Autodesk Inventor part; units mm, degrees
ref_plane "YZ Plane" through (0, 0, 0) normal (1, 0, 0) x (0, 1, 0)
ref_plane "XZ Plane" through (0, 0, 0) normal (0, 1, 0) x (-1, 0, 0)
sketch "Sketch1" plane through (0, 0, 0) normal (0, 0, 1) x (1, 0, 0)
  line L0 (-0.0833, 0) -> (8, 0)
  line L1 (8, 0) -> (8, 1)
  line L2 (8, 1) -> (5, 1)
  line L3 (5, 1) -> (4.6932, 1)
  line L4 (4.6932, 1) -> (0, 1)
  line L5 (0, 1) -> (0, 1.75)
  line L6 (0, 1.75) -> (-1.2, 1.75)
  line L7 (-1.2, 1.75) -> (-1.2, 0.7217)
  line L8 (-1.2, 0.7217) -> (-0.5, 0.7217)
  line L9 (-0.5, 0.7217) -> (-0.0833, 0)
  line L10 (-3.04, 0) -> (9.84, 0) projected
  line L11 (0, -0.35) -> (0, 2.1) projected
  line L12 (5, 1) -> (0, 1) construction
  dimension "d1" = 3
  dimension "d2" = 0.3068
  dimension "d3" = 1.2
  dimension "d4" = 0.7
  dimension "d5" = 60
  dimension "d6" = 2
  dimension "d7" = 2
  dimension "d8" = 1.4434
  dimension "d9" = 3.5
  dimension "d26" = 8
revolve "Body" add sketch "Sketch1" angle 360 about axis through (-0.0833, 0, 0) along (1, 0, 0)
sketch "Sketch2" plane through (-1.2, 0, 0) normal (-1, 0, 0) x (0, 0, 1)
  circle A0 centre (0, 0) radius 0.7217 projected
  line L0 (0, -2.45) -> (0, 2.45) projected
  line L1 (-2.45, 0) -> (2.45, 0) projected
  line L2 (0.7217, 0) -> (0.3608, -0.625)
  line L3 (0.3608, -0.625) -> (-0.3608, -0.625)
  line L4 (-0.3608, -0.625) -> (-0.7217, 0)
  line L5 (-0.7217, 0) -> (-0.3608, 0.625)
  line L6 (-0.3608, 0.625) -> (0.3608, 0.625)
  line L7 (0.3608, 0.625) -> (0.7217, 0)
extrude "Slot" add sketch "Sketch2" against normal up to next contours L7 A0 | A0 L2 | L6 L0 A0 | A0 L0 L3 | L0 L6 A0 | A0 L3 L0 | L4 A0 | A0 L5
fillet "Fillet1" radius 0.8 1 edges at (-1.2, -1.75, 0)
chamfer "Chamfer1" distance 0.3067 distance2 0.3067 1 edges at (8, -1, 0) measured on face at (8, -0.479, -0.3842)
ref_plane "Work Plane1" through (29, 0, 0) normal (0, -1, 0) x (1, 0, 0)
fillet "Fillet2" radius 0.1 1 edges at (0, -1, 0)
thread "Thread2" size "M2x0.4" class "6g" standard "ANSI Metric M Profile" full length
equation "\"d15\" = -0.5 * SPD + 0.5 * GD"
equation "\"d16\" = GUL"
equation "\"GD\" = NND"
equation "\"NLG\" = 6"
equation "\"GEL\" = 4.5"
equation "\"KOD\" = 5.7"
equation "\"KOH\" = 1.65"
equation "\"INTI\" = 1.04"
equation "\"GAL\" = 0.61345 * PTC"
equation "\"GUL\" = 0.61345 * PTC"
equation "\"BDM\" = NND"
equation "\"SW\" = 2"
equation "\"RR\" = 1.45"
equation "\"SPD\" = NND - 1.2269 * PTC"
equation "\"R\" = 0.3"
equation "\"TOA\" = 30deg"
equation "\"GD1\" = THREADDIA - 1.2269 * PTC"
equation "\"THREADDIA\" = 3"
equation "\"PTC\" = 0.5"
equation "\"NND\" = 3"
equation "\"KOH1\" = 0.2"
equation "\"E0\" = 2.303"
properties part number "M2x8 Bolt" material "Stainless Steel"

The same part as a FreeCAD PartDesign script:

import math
import FreeCAD as App
import Part
import Sketcher
from FreeCAD import Vector
Q = App.Units.Quantity


def edges_at(feature, points):
    """Names of the edges that pass closest to the given points."""
    edges = feature.Shape.Edges
    near = lambda p: min(range(len(edges)), key=lambda i: edges[i].distToShape(Part.Vertex(*p))[0])
    return sorted({f"Edge{near(p) + 1}" for p in points})

doc = App.newDocument("Part")
body = doc.addObject("PartDesign::Body", "Body")

# Sketch on XY plane
sketch1 = body.newObject("Sketcher::SketchObject", "Sketch")
sketch1.AttachmentSupport = (doc.getObject("XY_Plane"), [""])
sketch1.MapMode = "FlatFace"
sketch1.addGeometry(Part.LineSegment(Vector(-0.5, 0.7, 0), Vector(-0.1, 0, 0)), False)
sketch1.addGeometry(Part.LineSegment(Vector(-0.1, 0, 0), Vector(8, 0, 0)), False)
sketch1.addGeometry(Part.LineSegment(Vector(8, 0, 0), Vector(8, 1, 0)), False)
sketch1.addGeometry(Part.LineSegment(Vector(8, 1, 0), Vector(0, 1, 0)), False)
sketch1.addGeometry(Part.LineSegment(Vector(0, 1, 0), Vector(0, 1.8, 0)), False)
sketch1.addGeometry(Part.LineSegment(Vector(0, 1.8, 0), Vector(-1.2, 1.8, 0)), False)
sketch1.addGeometry(Part.LineSegment(Vector(-1.2, 1.8, 0), Vector(-1.2, 0.7, 0)), False)
sketch1.addGeometry(Part.LineSegment(Vector(-1.2, 0.7, 0), Vector(-0.5, 0.7, 0)), False)
sketch1.addConstraint(Sketcher.Constraint("Coincident", 0, 2, 1, 1))
sketch1.addConstraint(Sketcher.Constraint("Coincident", 1, 2, 2, 1))
sketch1.addConstraint(Sketcher.Constraint("Coincident", 2, 2, 3, 1))
sketch1.addConstraint(Sketcher.Constraint("Coincident", 3, 2, 4, 1))
sketch1.addConstraint(Sketcher.Constraint("Coincident", 4, 2, 5, 1))
sketch1.addConstraint(Sketcher.Constraint("Coincident", 5, 2, 6, 1))
sketch1.addConstraint(Sketcher.Constraint("Coincident", 6, 2, 7, 1))
sketch1.addConstraint(Sketcher.Constraint("Coincident", 7, 2, 0, 1))
sketch1.addConstraint(Sketcher.Constraint("Horizontal", 1))
sketch1.addConstraint(Sketcher.Constraint("Vertical", 2))
sketch1.addConstraint(Sketcher.Constraint("Horizontal", 3))
sketch1.addConstraint(Sketcher.Constraint("Vertical", 4))
sketch1.addConstraint(Sketcher.Constraint("Horizontal", 5))
sketch1.addConstraint(Sketcher.Constraint("Vertical", 6))
sketch1.addConstraint(Sketcher.Constraint("Horizontal", 7))
sketch1.addConstraint(Sketcher.Constraint("PointOnObject", 0, 2, -1))
sketch1.addConstraint(Sketcher.Constraint("PointOnObject", 3, 2, -2))
sketch1.addConstraint(Sketcher.Constraint("DistanceX", 3, 2, 3, 1, Q("8 mm")))
sketch1.addConstraint(Sketcher.Constraint("DistanceX", 5, 2, 5, 1, Q("1.2 mm")))
sketch1.addConstraint(Sketcher.Constraint("DistanceX", 7, 1, 7, 2, Q("0.7 mm")))
sketch1.addConstraint(Sketcher.Constraint("DistanceY", 2, 1, 2, 2, Q("1 mm")))
sketch1.addConstraint(Sketcher.Constraint("DistanceY", 4, 1, 4, 2, Q("0.75 mm")))
sketch1.addConstraint(Sketcher.Constraint("DistanceX", 1, 1, 1, 2, Q("8.0833 mm")))
sketch1.addConstraint(Sketcher.Constraint("DistanceY", 6, 2, 6, 1, Q("1.0283 mm")))
revolution = body.newObject("PartDesign::Revolution", "Revolution")
revolution.Profile = sketch1
revolution.ReferenceAxis = (sketch1, ["H_Axis"])
revolution.Angle = 360

# Sketch on YZ plane
sketch2 = body.newObject("Sketcher::SketchObject", "Sketch001")
sketch2.AttachmentSupport = (doc.getObject("YZ_Plane"), [""])
sketch2.MapMode = "FlatFace"
sketch2.AttachmentOffset = App.Placement(Vector(0, 0, -1.2), App.Rotation())
sketch2.addGeometry(Part.LineSegment(Vector(0.6, 0.4, 0), Vector(0, 0.7, 0)), False)
sketch2.addGeometry(Part.ArcOfCircle(Part.Circle(Vector(0, 0, 0), Vector(0, 0, 1), 0.7), math.radians(30), math.radians(90)), False)
sketch2.addGeometry(Part.ArcOfCircle(Part.Circle(Vector(0, 0, 0), Vector(0, 0, 1), 0.7), math.radians(90), math.radians(150)), False)
sketch2.addGeometry(Part.LineSegment(Vector(0, 0.7, 0), Vector(-0.6, 0.4, 0)), False)
sketch2.addGeometry(Part.ArcOfCircle(Part.Circle(Vector(0, 0, 0), Vector(0, 0, 1), 0.7), math.radians(-30), math.radians(30)), False)
sketch2.addGeometry(Part.LineSegment(Vector(0.6, 0.4, 0), Vector(0.6, -0.4, 0)), False)
sketch2.addGeometry(Part.LineSegment(Vector(-0.6, 0.4, 0), Vector(-0.6, -0.4, 0)), False)
sketch2.addGeometry(Part.ArcOfCircle(Part.Circle(Vector(0, 0, 0), Vector(0, 0, 1), 0.7), math.radians(150), math.radians(210)), False)
sketch2.addGeometry(Part.LineSegment(Vector(-0.6, -0.4, 0), Vector(0, -0.7, 0)), False)
sketch2.addGeometry(Part.ArcOfCircle(Part.Circle(Vector(0, 0, 0), Vector(0, 0, 1), 0.7), math.radians(-150), math.radians(-90)), False)
sketch2.addGeometry(Part.ArcOfCircle(Part.Circle(Vector(0, 0, 0), Vector(0, 0, 1), 0.7), math.radians(-90), math.radians(-30)), False)
sketch2.addGeometry(Part.LineSegment(Vector(0, -0.7, 0), Vector(0.6, -0.4, 0)), False)
sketch2.addConstraint(Sketcher.Constraint("Coincident", 0, 1, 1, 1))
sketch2.addConstraint(Sketcher.Constraint("Coincident", 1, 2, 0, 2))
sketch2.addConstraint(Sketcher.Constraint("Coincident", 2, 1, 3, 1))
sketch2.addConstraint(Sketcher.Constraint("Coincident", 3, 2, 2, 2))
sketch2.addConstraint(Sketcher.Constraint("Coincident", 4, 1, 5, 2))
sketch2.addConstraint(Sketcher.Constraint("Coincident", 5, 1, 4, 2))
sketch2.addConstraint(Sketcher.Constraint("Coincident", 6, 1, 7, 1))
sketch2.addConstraint(Sketcher.Constraint("Coincident", 7, 2, 6, 2))
sketch2.addConstraint(Sketcher.Constraint("Coincident", 8, 1, 9, 1))
sketch2.addConstraint(Sketcher.Constraint("Coincident", 9, 2, 8, 2))
sketch2.addConstraint(Sketcher.Constraint("Coincident", 10, 1, 11, 1))
sketch2.addConstraint(Sketcher.Constraint("Coincident", 11, 2, 10, 2))
sketch2.addConstraint(Sketcher.Constraint("Vertical", 5))
sketch2.addConstraint(Sketcher.Constraint("Vertical", 6))
sketch2.addConstraint(Sketcher.Constraint("Coincident", 1, 3, -1, 1))
sketch2.addConstraint(Sketcher.Constraint("Coincident", 2, 3, -1, 1))
sketch2.addConstraint(Sketcher.Constraint("Coincident", 4, 3, -1, 1))
sketch2.addConstraint(Sketcher.Constraint("Coincident", 7, 3, -1, 1))
sketch2.addConstraint(Sketcher.Constraint("Coincident", 9, 3, -1, 1))
sketch2.addConstraint(Sketcher.Constraint("Coincident", 10, 3, -1, 1))
sketch2.addConstraint(Sketcher.Constraint("Coincident", 2, 1, 1, 2))
sketch2.addConstraint(Sketcher.Constraint("Coincident", 5, 1, 0, 1))
sketch2.addConstraint(Sketcher.Constraint("Coincident", 6, 1, 3, 2))
sketch2.addConstraint(Sketcher.Constraint("Coincident", 8, 1, 7, 2))
sketch2.addConstraint(Sketcher.Constraint("Coincident", 10, 1, 9, 2))
sketch2.addConstraint(Sketcher.Constraint("PointOnObject", 1, 2, -2))
sketch2.addConstraint(Sketcher.Constraint("PointOnObject", 9, 2, -2))
sketch2.addConstraint(Sketcher.Constraint("Parallel", 0, 8))
sketch2.addConstraint(Sketcher.Constraint("Parallel", 3, 11))
sketch2.addConstraint(Sketcher.Constraint("Radius", 1, Q("0.7217 mm")))
sketch2.addConstraint(Sketcher.Constraint("DistanceY", 5, 2, 5, 1, Q("0.7216 mm")))
pad1 = body.newObject("PartDesign::Pad", "Pad")
pad1.Profile = sketch2
pad1.Type = "UpToFirst"
doc.recompute()

fillet = body.newObject("PartDesign::Fillet", "Fillet")
fillet.Base = (pad1, edges_at(pad1, [(-1.2, -1.75, 0)]))
fillet.Radius = 0.8
doc.recompute()

chamfer = body.newObject("PartDesign::Chamfer", "Chamfer")
chamfer.Base = (fillet, edges_at(fillet, [(8, -1, 0)]))
chamfer.ChamferType = "Two distances"
chamfer.Size = 0.3067
chamfer.Size2 = 0.3067
doc.recompute()

fillet2 = body.newObject("PartDesign::Fillet", "Fillet001")
fillet2.Base = (chamfer, edges_at(chamfer, [(0, -1, 0)]))
fillet2.Radius = 0.1

doc.recompute()
